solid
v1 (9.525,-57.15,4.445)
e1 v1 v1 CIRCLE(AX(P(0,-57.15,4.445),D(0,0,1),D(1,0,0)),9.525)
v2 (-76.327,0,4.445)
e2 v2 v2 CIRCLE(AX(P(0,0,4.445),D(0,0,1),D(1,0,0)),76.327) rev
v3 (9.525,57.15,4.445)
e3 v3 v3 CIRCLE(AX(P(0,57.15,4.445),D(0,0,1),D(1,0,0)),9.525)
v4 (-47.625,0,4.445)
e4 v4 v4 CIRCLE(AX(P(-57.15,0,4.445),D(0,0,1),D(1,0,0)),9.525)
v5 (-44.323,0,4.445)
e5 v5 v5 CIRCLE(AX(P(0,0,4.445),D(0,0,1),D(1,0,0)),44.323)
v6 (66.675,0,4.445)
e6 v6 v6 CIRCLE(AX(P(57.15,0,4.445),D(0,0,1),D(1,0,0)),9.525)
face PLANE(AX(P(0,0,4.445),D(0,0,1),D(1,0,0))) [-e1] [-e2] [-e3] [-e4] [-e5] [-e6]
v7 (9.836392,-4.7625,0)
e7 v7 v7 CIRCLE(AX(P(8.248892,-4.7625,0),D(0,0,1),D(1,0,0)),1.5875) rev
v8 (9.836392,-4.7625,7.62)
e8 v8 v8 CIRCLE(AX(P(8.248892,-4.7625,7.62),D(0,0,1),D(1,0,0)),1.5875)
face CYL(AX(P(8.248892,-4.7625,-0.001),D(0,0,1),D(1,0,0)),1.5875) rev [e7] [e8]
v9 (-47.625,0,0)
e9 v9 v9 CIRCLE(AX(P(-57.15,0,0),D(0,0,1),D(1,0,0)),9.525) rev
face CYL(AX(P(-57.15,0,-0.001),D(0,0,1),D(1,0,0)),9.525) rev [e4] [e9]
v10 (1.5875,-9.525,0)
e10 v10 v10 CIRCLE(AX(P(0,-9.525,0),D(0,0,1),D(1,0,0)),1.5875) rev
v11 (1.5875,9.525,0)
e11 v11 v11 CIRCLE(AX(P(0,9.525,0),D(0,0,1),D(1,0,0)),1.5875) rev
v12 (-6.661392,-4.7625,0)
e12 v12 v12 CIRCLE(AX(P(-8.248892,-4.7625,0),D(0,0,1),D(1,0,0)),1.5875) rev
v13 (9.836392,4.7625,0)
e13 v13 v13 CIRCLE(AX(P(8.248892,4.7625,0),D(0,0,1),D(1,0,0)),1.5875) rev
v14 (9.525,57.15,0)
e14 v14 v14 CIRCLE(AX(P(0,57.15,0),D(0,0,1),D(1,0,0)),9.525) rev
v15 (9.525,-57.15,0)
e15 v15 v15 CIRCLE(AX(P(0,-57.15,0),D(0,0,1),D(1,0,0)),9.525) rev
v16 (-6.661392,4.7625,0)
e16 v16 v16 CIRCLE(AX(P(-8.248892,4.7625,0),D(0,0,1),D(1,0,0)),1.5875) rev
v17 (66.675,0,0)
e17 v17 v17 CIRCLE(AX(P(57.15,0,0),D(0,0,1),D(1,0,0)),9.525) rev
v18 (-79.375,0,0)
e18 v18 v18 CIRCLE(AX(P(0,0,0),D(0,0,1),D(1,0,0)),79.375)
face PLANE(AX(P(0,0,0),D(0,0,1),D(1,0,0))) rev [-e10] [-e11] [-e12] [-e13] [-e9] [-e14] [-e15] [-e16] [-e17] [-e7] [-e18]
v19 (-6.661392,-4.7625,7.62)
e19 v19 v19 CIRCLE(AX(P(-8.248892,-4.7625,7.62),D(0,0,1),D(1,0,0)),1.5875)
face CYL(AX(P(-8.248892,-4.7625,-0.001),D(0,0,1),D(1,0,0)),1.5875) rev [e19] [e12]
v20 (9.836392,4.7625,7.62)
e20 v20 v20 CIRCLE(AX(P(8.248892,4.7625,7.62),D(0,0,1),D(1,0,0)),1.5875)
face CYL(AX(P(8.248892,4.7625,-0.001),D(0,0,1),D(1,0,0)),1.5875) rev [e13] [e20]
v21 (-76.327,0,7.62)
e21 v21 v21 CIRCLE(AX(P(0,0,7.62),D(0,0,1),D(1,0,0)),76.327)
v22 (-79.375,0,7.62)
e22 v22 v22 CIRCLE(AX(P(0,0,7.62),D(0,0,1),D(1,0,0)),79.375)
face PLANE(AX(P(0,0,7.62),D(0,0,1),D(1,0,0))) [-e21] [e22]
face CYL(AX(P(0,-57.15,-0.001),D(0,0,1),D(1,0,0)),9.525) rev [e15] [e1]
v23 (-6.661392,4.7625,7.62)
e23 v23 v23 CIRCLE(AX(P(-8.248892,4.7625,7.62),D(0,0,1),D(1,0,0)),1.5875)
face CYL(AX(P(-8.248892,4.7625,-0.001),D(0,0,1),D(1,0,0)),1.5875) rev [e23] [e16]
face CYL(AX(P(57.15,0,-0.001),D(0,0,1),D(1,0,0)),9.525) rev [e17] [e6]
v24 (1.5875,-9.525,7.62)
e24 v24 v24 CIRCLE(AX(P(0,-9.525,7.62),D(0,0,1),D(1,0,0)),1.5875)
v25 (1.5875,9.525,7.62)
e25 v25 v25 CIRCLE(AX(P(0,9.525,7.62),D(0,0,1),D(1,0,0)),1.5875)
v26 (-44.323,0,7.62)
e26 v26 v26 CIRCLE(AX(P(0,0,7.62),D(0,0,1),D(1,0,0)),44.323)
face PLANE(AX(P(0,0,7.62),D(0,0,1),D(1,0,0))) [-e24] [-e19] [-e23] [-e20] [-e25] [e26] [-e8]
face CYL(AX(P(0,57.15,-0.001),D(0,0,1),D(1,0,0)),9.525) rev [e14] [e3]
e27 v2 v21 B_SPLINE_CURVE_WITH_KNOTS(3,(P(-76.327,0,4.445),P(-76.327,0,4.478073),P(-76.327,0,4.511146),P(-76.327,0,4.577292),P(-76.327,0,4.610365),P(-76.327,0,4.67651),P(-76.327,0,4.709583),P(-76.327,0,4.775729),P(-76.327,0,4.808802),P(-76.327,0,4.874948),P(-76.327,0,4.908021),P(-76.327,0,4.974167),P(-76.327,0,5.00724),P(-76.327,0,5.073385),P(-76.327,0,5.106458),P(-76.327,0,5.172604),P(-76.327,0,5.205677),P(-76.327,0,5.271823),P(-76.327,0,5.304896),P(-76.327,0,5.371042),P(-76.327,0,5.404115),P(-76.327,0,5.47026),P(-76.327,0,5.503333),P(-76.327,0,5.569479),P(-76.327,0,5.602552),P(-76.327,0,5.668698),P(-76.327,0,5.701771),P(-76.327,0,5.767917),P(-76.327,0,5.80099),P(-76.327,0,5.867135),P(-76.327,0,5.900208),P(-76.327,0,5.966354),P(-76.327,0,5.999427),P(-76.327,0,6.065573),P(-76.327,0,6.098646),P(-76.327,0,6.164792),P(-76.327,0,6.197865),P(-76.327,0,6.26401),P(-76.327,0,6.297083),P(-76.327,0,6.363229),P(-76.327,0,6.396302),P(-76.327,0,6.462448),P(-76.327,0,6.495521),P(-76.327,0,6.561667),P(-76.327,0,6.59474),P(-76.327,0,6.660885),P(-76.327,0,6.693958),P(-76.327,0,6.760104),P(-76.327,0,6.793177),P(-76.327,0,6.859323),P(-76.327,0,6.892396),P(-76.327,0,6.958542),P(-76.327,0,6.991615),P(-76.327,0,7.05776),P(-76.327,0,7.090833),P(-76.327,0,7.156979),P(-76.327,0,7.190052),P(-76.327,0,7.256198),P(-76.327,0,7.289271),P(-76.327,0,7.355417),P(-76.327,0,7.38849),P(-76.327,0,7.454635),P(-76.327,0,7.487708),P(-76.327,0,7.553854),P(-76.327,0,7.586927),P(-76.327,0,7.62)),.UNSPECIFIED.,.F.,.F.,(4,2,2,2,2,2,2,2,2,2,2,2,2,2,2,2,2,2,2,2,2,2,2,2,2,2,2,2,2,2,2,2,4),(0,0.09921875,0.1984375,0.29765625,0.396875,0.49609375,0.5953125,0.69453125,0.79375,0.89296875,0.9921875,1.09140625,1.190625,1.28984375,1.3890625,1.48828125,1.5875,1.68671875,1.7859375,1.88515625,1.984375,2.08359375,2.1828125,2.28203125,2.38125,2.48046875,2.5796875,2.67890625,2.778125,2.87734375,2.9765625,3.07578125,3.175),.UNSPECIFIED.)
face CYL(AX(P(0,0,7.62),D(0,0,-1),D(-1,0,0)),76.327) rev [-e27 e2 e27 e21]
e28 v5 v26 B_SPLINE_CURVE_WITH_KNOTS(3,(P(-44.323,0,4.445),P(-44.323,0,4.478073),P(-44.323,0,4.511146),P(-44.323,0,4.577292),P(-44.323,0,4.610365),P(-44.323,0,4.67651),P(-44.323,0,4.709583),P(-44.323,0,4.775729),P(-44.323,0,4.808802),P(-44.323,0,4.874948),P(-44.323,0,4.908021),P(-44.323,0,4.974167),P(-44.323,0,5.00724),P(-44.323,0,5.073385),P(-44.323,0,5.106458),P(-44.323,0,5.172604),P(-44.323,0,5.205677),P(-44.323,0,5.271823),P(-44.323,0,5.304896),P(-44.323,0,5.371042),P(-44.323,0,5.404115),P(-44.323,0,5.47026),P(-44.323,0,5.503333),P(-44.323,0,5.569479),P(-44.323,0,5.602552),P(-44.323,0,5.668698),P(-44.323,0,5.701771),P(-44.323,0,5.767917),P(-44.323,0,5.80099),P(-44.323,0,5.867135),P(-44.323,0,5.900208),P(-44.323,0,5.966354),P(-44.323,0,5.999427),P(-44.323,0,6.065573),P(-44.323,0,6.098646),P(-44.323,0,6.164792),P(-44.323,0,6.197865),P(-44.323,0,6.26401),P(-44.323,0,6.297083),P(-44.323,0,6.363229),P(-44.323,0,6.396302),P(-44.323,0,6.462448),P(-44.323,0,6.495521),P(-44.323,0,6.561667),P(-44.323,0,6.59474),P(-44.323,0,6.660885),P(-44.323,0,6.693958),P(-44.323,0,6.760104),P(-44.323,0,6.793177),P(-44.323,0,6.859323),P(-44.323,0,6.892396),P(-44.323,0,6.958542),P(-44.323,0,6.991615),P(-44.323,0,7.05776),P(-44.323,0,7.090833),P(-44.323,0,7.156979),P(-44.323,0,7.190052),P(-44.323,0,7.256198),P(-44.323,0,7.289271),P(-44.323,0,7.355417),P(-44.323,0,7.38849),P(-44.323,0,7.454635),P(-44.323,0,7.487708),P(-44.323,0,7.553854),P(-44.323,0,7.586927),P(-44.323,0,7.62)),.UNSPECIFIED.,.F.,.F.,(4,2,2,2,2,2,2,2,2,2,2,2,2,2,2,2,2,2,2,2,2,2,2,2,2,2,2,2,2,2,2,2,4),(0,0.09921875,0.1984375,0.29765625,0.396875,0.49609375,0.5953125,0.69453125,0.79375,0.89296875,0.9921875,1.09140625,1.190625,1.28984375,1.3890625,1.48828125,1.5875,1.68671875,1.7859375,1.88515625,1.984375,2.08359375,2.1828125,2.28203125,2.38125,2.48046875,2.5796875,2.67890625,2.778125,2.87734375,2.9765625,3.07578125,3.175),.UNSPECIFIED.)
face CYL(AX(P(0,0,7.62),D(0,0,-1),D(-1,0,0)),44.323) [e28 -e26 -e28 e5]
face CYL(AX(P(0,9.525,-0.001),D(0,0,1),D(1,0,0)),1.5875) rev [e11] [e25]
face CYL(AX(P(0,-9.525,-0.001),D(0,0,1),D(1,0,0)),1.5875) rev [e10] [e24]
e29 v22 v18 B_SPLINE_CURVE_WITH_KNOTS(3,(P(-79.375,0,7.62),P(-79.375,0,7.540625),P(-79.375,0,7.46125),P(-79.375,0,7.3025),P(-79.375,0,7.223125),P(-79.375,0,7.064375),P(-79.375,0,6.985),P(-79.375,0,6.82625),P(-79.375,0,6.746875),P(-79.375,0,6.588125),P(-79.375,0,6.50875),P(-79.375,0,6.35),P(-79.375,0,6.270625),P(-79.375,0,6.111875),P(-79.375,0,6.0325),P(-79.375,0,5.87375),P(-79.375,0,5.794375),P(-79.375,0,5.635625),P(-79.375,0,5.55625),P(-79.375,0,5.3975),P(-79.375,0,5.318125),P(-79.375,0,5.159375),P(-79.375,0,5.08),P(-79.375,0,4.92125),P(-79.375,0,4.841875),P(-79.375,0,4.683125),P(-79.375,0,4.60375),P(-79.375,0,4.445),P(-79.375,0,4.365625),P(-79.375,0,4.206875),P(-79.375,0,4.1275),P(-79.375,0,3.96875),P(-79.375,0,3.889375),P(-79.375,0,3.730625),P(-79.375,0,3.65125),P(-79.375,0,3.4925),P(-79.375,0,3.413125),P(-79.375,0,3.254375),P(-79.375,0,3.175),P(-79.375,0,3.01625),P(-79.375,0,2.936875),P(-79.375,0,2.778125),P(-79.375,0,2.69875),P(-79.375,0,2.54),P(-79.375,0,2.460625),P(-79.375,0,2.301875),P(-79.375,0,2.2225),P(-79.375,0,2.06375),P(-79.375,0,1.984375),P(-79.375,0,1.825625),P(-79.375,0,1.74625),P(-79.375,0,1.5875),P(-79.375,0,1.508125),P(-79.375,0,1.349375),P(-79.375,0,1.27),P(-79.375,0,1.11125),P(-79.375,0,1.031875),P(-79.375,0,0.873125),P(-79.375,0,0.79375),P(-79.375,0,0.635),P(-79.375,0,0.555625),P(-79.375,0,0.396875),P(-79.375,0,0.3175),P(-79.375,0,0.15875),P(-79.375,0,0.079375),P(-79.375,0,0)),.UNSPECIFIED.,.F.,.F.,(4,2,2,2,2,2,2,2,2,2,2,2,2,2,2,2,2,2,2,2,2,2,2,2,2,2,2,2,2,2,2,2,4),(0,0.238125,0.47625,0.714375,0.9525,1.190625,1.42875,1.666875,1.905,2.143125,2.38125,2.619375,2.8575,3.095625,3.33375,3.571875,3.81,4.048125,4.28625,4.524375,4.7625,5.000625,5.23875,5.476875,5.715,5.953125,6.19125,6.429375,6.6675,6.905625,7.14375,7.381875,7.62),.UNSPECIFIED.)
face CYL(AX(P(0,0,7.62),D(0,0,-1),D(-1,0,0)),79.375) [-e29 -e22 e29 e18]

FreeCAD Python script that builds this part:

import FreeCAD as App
import Part
import Sketcher
from FreeCAD import Vector
Q = App.Units.Quantity

doc = App.newDocument("Part")
body = doc.addObject("PartDesign::Body", "Body")

# Sketch on XY plane
sketch1 = body.newObject("Sketcher::SketchObject", "Sketch")
sketch1.AttachmentSupport = (doc.getObject("XY_Plane"), [""])
sketch1.MapMode = "FlatFace"
sketch1.addGeometry(Part.Circle(Vector(0, 0, 0), Vector(0, 0, 1), 44), False)
sketch1.addConstraint(Sketcher.Constraint("Coincident", 0, 3, -1, 1))
sketch1.addConstraint(Sketcher.Constraint("Diameter", 0, Q("3.49 in")))
pad1 = body.newObject("PartDesign::Pad", "Pad")
pad1.Profile = sketch1
pad1.Length = Q("0.3 in")
body2 = doc.addObject("PartDesign::Body", "Body001")

# Sketch on XY plane
sketch2 = body2.newObject("Sketcher::SketchObject", "Sketch001")
sketch2.AttachmentSupport = (doc.getObject("XY_Plane001"), [""])
sketch2.MapMode = "FlatFace"
sketch2.addGeometry(Part.Circle(Vector(0, 0, 0), Vector(0, 0, 1), 79), False)
sketch2.addGeometry(Part.Circle(Vector(0, 0, 0), Vector(0, 0, 1), 76), False)
sketch2.addConstraint(Sketcher.Constraint("Coincident", 0, 3, -1, 1))
sketch2.addConstraint(Sketcher.Constraint("Coincident", 1, 3, -1, 1))
sketch2.addConstraint(Sketcher.Constraint("Diameter", 0, Q("6.25 in")))
sketch2.addConstraint(Sketcher.Constraint("Diameter", 1, Q("6.01 in")))
pad2 = body2.newObject("PartDesign::Pad", "Pad001")
pad2.Profile = sketch2
pad2.Length = Q("0.3 in")
body.AllowCompound = True
doc.recompute()

boolean = body.newObject("PartDesign::Boolean", "Boolean")
boolean.Type = "Fuse"
boolean.addObjects([body2])

# Sketch on XY plane
sketch3 = body.newObject("Sketcher::SketchObject", "Sketch002")
sketch3.AttachmentSupport = (doc.getObject("XY_Plane"), [""])
sketch3.MapMode = "FlatFace"
sketch3.addGeometry(Part.Circle(Vector(0, 0, 0), Vector(0, 0, 1), 76), False)
sketch3.addGeometry(Part.Circle(Vector(0, 0, 0), Vector(0, 0, 1), 44), False)
sketch3.addConstraint(Sketcher.Constraint("Coincident", 0, 3, -1, 1))
sketch3.addConstraint(Sketcher.Constraint("Coincident", 1, 3, -1, 1))
sketch3.addConstraint(Sketcher.Constraint("Diameter", 0, Q("6.01 in")))
sketch3.addConstraint(Sketcher.Constraint("Diameter", 1, Q("3.49 in")))
pad3 = body.newObject("PartDesign::Pad", "Pad002")
pad3.Profile = sketch3
pad3.Length = Q("0.175 in")

# Sketch on XY plane
sketch4 = body.newObject("Sketcher::SketchObject", "Sketch003")
sketch4.AttachmentSupport = (doc.getObject("XY_Plane"), [""])
sketch4.MapMode = "FlatFace"
sketch4.AttachmentOffset = App.Placement(Vector(0, 0, 0.3 * 25.4), App.Rotation())
sketch4.addGeometry(Part.Circle(Vector(0, 9.5, 0), Vector(0, 0, 1), 1.6), False)
sketch4.addConstraint(Sketcher.Constraint("PointOnObject", 0, 3, -2))
sketch4.addConstraint(Sketcher.Constraint("Diameter", 0, Q("0.125 in")))
sketch4.addConstraint(Sketcher.Constraint("DistanceY", -1, 1, 0, 3, Q("0.375 in")))
pocket1 = body.newObject("PartDesign::Pocket", "Pocket")
pocket1.Profile = sketch4
pocket1.Type = "UpToFirst"

# Sketch on XY plane
sketch5 = body.newObject("Sketcher::SketchObject", "Sketch004")
sketch5.AttachmentSupport = (doc.getObject("XY_Plane"), [""])
sketch5.MapMode = "FlatFace"
sketch5.AttachmentOffset = App.Placement(Vector(0, 0, 0.3 * 25.4), App.Rotation())
sketch5.addGeometry(Part.Circle(Vector(8.2, 4.8, 0), Vector(0, 0, 1), 1.6), False)
sketch5.addConstraint(Sketcher.Constraint("Diameter", 0, Q("0.125 in")))
sketch5.addConstraint(Sketcher.Constraint("DistanceY", -1, 1, 0, 3, Q("0.1875 in")))
sketch5.addConstraint(Sketcher.Constraint("DistanceX", -1, 1, 0, 3, 8.248892))
pocket2 = body.newObject("PartDesign::Pocket", "Pocket001")
pocket2.Profile = sketch5
pocket2.Type = "UpToFirst"

# Sketch on XY plane
sketch6 = body.newObject("Sketcher::SketchObject", "Sketch005")
sketch6.AttachmentSupport = (doc.getObject("XY_Plane"), [""])
sketch6.MapMode = "FlatFace"
sketch6.AttachmentOffset = App.Placement(Vector(0, 0, 0.3 * 25.4), App.Rotation())
sketch6.addGeometry(Part.Circle(Vector(8.2, -4.8, 0), Vector(0, 0, 1), 1.6), False)
sketch6.addConstraint(Sketcher.Constraint("Diameter", 0, Q("0.125 in")))
sketch6.addConstraint(Sketcher.Constraint("DistanceY", 0, 3, -1, 1, Q("0.1875 in")))
sketch6.addConstraint(Sketcher.Constraint("DistanceX", -1, 1, 0, 3, 8.248892))
pocket3 = body.newObject("PartDesign::Pocket", "Pocket002")
pocket3.Profile = sketch6
pocket3.Type = "UpToFirst"

# Sketch on XY plane
sketch7 = body.newObject("Sketcher::SketchObject", "Sketch006")
sketch7.AttachmentSupport = (doc.getObject("XY_Plane"), [""])
sketch7.MapMode = "FlatFace"
sketch7.AttachmentOffset = App.Placement(Vector(0, 0, 0.3 * 25.4), App.Rotation())
sketch7.addGeometry(Part.Circle(Vector(0, -9.5, 0), Vector(0, 0, 1), 1.6), False)
sketch7.addConstraint(Sketcher.Constraint("PointOnObject", 0, 3, -2))
sketch7.addConstraint(Sketcher.Constraint("Diameter", 0, Q("0.125 in")))
sketch7.addConstraint(Sketcher.Constraint("DistanceY", 0, 3, -1, 1, Q("0.375 in")))
pocket4 = body.newObject("PartDesign::Pocket", "Pocket003")
pocket4.Profile = sketch7
pocket4.Type = "UpToFirst"

# Sketch on XY plane
sketch8 = body.newObject("Sketcher::SketchObject", "Sketch007")
sketch8.AttachmentSupport = (doc.getObject("XY_Plane"), [""])
sketch8.MapMode = "FlatFace"
sketch8.AttachmentOffset = App.Placement(Vector(0, 0, 0.3 * 25.4), App.Rotation())
sketch8.addGeometry(Part.Circle(Vector(-8.2, -4.8, 0), Vector(0, 0, 1), 1.6), False)
sketch8.addConstraint(Sketcher.Constraint("Diameter", 0, Q("0.125 in")))
sketch8.addConstraint(Sketcher.Constraint("DistanceY", 0, 3, -1, 1, Q("0.1875 in")))
sketch8.addConstraint(Sketcher.Constraint("DistanceX", 0, 3, -1, 1, 8.248892))
pocket5 = body.newObject("PartDesign::Pocket", "Pocket004")
pocket5.Profile = sketch8
pocket5.Type = "UpToFirst"

# Sketch on XY plane
sketch9 = body.newObject("Sketcher::SketchObject", "Sketch008")
sketch9.AttachmentSupport = (doc.getObject("XY_Plane"), [""])
sketch9.MapMode = "FlatFace"
sketch9.AttachmentOffset = App.Placement(Vector(0, 0, 0.3 * 25.4), App.Rotation())
sketch9.addGeometry(Part.Circle(Vector(-8.2, 4.8, 0), Vector(0, 0, 1), 1.6), False)
sketch9.addConstraint(Sketcher.Constraint("Diameter", 0, Q("0.125 in")))
sketch9.addConstraint(Sketcher.Constraint("DistanceY", -1, 1, 0, 3, Q("0.1875 in")))
sketch9.addConstraint(Sketcher.Constraint("DistanceX", 0, 3, -1, 1, 8.248892))
pocket6 = body.newObject("PartDesign::Pocket", "Pocket005")
pocket6.Profile = sketch9
pocket6.Type = "UpToFirst"

# Sketch on XY plane
sketch10 = body.newObject("Sketcher::SketchObject", "Sketch009")
sketch10.AttachmentSupport = (doc.getObject("XY_Plane"), [""])
sketch10.MapMode = "FlatFace"
sketch10.AttachmentOffset = App.Placement(Vector(0, 0, 0.175 * 25.4), App.Rotation())
sketch10.addGeometry(Part.Circle(Vector(0, 57, 0), Vector(0, 0, 1), 10), False)
sketch10.addConstraint(Sketcher.Constraint("PointOnObject", 0, 3, -2))
sketch10.addConstraint(Sketcher.Constraint("Diameter", 0, Q("0.75 in")))
sketch10.addConstraint(Sketcher.Constraint("DistanceY", -1, 1, 0, 3, Q("2.25 in")))
pocket7 = body.newObject("PartDesign::Pocket", "Pocket006")
pocket7.Profile = sketch10
pocket7.Type = "UpToFirst"

# Sketch on XY plane
sketch11 = body.newObject("Sketcher::SketchObject", "Sketch010")
sketch11.AttachmentSupport = (doc.getObject("XY_Plane"), [""])
sketch11.MapMode = "FlatFace"
sketch11.AttachmentOffset = App.Placement(Vector(0, 0, 0.175 * 25.4), App.Rotation())
sketch11.addGeometry(Part.Circle(Vector(57, 0, 0), Vector(0, 0, 1), 10), False)
sketch11.addConstraint(Sketcher.Constraint("PointOnObject", 0, 3, -1))
sketch11.addConstraint(Sketcher.Constraint("Diameter", 0, Q("0.75 in")))
sketch11.addConstraint(Sketcher.Constraint("DistanceX", -1, 1, 0, 3, Q("2.25 in")))
pocket8 = body.newObject("PartDesign::Pocket", "Pocket007")
pocket8.Profile = sketch11
pocket8.Type = "UpToFirst"

# Sketch on XY plane
sketch12 = body.newObject("Sketcher::SketchObject", "Sketch011")
sketch12.AttachmentSupport = (doc.getObject("XY_Plane"), [""])
sketch12.MapMode = "FlatFace"
sketch12.AttachmentOffset = App.Placement(Vector(0, 0, 0.175 * 25.4), App.Rotation())
sketch12.addGeometry(Part.Circle(Vector(0, -57, 0), Vector(0, 0, 1), 10), False)
sketch12.addConstraint(Sketcher.Constraint("PointOnObject", 0, 3, -2))
sketch12.addConstraint(Sketcher.Constraint("Diameter", 0, Q("0.75 in")))
sketch12.addConstraint(Sketcher.Constraint("DistanceY", 0, 3, -1, 1, Q("2.25 in")))
pocket9 = body.newObject("PartDesign::Pocket", "Pocket008")
pocket9.Profile = sketch12
pocket9.Type = "UpToFirst"

# Sketch on XY plane
sketch13 = body.newObject("Sketcher::SketchObject", "Sketch012")
sketch13.AttachmentSupport = (doc.getObject("XY_Plane"), [""])
sketch13.MapMode = "FlatFace"
sketch13.AttachmentOffset = App.Placement(Vector(0, 0, 0.175 * 25.4), App.Rotation())
sketch13.addGeometry(Part.Circle(Vector(-57, 0, 0), Vector(0, 0, 1), 10), False)
sketch13.addConstraint(Sketcher.Constraint("PointOnObject", 0, 3, -1))
sketch13.addConstraint(Sketcher.Constraint("Diameter", 0, Q("0.75 in")))
sketch13.addConstraint(Sketcher.Constraint("DistanceX", 0, 3, -1, 1, Q("2.25 in")))
pocket10 = body.newObject("PartDesign::Pocket", "Pocket009")
pocket10.Profile = sketch13
pocket10.Type = "UpToFirst"

doc.recompute()
